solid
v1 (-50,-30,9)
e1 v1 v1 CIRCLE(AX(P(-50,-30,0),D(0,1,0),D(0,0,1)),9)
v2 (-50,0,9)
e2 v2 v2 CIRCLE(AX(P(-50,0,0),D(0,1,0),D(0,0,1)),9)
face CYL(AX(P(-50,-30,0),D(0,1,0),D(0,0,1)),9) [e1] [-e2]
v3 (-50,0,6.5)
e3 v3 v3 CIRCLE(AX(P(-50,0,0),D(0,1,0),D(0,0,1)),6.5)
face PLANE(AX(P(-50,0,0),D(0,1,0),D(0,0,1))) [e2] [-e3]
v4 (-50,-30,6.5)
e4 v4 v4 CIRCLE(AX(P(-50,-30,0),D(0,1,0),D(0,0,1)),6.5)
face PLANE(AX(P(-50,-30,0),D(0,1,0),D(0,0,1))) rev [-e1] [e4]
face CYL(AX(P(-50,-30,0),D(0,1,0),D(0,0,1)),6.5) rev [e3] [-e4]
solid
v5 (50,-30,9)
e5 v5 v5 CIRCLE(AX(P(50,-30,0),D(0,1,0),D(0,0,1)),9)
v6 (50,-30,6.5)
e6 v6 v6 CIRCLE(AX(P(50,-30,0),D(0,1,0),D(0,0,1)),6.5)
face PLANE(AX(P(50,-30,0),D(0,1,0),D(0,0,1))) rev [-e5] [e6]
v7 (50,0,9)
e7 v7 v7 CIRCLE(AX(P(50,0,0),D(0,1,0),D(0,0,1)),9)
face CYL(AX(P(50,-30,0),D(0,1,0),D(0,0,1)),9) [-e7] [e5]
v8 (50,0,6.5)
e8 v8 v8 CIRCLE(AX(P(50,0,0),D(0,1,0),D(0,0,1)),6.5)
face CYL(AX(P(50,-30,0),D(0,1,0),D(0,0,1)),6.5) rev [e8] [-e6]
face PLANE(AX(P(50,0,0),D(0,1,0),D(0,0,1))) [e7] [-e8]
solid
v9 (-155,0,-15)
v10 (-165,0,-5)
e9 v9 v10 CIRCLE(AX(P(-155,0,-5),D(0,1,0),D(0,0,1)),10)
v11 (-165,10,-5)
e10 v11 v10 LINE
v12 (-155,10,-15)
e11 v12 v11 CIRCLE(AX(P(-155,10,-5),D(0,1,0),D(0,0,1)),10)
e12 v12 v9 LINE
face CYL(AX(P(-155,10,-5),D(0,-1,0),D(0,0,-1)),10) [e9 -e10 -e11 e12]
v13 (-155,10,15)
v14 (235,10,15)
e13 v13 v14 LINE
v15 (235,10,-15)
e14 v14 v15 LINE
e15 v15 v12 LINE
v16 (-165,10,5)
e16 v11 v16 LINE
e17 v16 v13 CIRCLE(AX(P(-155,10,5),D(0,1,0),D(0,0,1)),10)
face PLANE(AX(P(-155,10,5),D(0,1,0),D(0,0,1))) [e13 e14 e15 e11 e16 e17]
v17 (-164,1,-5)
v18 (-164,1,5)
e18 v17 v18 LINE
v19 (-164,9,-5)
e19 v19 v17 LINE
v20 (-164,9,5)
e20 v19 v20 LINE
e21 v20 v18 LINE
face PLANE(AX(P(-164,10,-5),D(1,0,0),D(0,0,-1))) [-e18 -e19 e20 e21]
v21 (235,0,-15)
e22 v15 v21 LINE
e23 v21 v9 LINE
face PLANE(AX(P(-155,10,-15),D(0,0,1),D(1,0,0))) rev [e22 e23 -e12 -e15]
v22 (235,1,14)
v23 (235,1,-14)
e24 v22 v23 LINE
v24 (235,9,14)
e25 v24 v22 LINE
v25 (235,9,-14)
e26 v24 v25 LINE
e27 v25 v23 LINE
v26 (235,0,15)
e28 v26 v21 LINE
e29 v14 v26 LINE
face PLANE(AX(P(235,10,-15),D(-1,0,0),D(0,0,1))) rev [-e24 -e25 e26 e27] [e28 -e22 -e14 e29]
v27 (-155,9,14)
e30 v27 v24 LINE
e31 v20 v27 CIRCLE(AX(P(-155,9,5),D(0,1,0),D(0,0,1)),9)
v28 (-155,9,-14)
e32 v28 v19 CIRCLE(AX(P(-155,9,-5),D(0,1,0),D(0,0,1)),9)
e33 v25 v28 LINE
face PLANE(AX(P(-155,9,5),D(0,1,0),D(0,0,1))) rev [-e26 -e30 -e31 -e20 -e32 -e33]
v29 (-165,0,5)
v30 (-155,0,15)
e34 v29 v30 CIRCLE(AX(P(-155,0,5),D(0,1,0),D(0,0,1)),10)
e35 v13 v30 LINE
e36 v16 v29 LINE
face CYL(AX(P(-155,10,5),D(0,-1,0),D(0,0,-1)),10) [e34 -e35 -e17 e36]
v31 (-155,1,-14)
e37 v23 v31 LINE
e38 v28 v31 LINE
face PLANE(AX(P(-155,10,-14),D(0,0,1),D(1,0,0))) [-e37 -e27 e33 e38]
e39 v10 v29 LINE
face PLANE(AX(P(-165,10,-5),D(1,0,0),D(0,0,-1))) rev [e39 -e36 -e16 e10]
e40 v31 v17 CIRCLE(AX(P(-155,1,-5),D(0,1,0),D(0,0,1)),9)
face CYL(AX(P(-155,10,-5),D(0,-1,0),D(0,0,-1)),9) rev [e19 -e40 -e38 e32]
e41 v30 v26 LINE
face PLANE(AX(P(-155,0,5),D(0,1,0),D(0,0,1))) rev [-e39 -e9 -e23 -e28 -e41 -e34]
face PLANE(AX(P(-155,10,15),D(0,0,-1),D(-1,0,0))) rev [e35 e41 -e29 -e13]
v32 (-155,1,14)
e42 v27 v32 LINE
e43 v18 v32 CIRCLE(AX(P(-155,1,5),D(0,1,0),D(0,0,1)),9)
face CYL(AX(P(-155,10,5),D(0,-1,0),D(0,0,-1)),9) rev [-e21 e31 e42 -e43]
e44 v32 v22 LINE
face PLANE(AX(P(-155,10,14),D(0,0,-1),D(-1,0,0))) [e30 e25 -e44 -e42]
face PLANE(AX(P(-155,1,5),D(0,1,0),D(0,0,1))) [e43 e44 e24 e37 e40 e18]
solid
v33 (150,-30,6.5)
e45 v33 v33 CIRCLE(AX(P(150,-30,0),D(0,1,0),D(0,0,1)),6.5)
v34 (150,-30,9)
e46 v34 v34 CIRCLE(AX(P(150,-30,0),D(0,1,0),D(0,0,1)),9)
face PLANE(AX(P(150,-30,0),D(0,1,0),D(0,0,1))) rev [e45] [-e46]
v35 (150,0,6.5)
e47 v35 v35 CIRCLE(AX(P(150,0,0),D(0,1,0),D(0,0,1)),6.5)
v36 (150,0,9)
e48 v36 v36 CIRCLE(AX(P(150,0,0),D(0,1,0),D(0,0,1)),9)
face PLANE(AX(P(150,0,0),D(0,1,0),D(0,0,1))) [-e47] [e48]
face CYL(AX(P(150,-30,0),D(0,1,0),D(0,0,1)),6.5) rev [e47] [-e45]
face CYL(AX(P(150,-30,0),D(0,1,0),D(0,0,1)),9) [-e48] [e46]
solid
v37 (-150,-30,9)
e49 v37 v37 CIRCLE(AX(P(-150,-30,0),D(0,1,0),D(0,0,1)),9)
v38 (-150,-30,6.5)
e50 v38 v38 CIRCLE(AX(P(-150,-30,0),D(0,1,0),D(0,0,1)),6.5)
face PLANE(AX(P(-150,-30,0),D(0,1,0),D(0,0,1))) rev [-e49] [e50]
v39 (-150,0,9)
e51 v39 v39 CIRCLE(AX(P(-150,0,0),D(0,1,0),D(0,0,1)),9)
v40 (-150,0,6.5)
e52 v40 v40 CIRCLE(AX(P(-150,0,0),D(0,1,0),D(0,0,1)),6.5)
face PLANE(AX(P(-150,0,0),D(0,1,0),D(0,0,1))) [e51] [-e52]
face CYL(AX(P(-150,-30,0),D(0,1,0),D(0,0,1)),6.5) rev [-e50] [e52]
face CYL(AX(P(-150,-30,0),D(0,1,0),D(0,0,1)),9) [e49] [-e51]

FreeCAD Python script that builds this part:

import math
import FreeCAD as App
import Part
import Sketcher


def faces_at(feature, points):
    """Names of the faces that lie closest to the given points."""
    faces = feature.Shape.Faces
    near = lambda p: min(range(len(faces)), key=lambda i: faces[i].distToShape(Part.Vertex(*p))[0])
    return sorted({f"Face{near(p) + 1}" for p in points})

doc = App.newDocument("Part")
body = doc.addObject("PartDesign::Body", "Body")

# Sketch on XZ plane
sketch1 = body.newObject("Sketcher::SketchObject", "Sketch")
sketch1.AttachmentSupport = (doc.getObject("XZ_Plane"), [""])
sketch1.MapMode = "FlatFace"
sketch1.addGeometry(Part.Circle(App.Vector(-150, 0, 0), App.Vector(0, 0, 1), 9), False)
sketch1.addGeometry(Part.Circle(App.Vector(-150, 0, 0), App.Vector(0, 0, 1), 6), False)
sketch1.addConstraint(Sketcher.Constraint("Coincident", 1, 3, 0, 3))
sketch1.addConstraint(Sketcher.Constraint("PointOnObject", 0, 3, -1))
sketch1.addConstraint(Sketcher.Constraint("Diameter", 0, 18.0))
sketch1.addConstraint(Sketcher.Constraint("Diameter", 1, 13.0))
sketch1.addConstraint(Sketcher.Constraint("DistanceX", 0, 3, -1, 1, 150.0))
pad1 = body.newObject("PartDesign::Pad", "Pad")
pad1.Profile = sketch1
pad1.Length = 30
body2 = doc.addObject("PartDesign::Body", "Body001")

# Sketch on XZ plane
sketch2 = body2.newObject("Sketcher::SketchObject", "Sketch001")
sketch2.AttachmentSupport = (doc.getObject("XZ_Plane001"), [""])
sketch2.MapMode = "FlatFace"
sketch2.addGeometry(Part.Circle(App.Vector(-50, 0, 0), App.Vector(0, 0, 1), 9), False)
sketch2.addGeometry(Part.Circle(App.Vector(-50, 0, 0), App.Vector(0, 0, 1), 6), False)
sketch2.addConstraint(Sketcher.Constraint("Coincident", 1, 3, 0, 3))
sketch2.addConstraint(Sketcher.Constraint("PointOnObject", 0, 3, -1))
sketch2.addConstraint(Sketcher.Constraint("Diameter", 0, 18.0))
sketch2.addConstraint(Sketcher.Constraint("Diameter", 1, 13.0))
sketch2.addConstraint(Sketcher.Constraint("DistanceX", 0, 3, -1, 1, 50.0))
pad2 = body2.newObject("PartDesign::Pad", "Pad001")
pad2.Profile = sketch2
pad2.Length = 30
body3 = doc.addObject("PartDesign::Body", "Body002")

# Sketch on XZ plane
sketch3 = body3.newObject("Sketcher::SketchObject", "Sketch002")
sketch3.AttachmentSupport = (doc.getObject("XZ_Plane002"), [""])
sketch3.MapMode = "FlatFace"
sketch3.addGeometry(Part.Circle(App.Vector(50, 0, 0), App.Vector(0, 0, 1), 9), False)
sketch3.addGeometry(Part.Circle(App.Vector(50, 0, 0), App.Vector(0, 0, 1), 6), False)
sketch3.addConstraint(Sketcher.Constraint("Coincident", 1, 3, 0, 3))
sketch3.addConstraint(Sketcher.Constraint("PointOnObject", 0, 3, -1))
sketch3.addConstraint(Sketcher.Constraint("Diameter", 0, 18.0))
sketch3.addConstraint(Sketcher.Constraint("Diameter", 1, 13.0))
sketch3.addConstraint(Sketcher.Constraint("DistanceX", -1, 1, 0, 3, 50.0))
pad3 = body3.newObject("PartDesign::Pad", "Pad002")
pad3.Profile = sketch3
pad3.Length = 30
body4 = doc.addObject("PartDesign::Body", "Body003")

# Sketch on XZ plane
sketch4 = body4.newObject("Sketcher::SketchObject", "Sketch003")
sketch4.AttachmentSupport = (doc.getObject("XZ_Plane003"), [""])
sketch4.MapMode = "FlatFace"
sketch4.addGeometry(Part.Circle(App.Vector(150, 0, 0), App.Vector(0, 0, 1), 9), False)
sketch4.addGeometry(Part.Circle(App.Vector(150, 0, 0), App.Vector(0, 0, 1), 6), False)
sketch4.addConstraint(Sketcher.Constraint("Coincident", 1, 3, 0, 3))
sketch4.addConstraint(Sketcher.Constraint("PointOnObject", 0, 3, -1))
sketch4.addConstraint(Sketcher.Constraint("Diameter", 0, 18.0))
sketch4.addConstraint(Sketcher.Constraint("Diameter", 1, 13.0))
sketch4.addConstraint(Sketcher.Constraint("DistanceX", -1, 1, 0, 3, 150.0))
pad4 = body4.newObject("PartDesign::Pad", "Pad003")
pad4.Profile = sketch4
pad4.Length = 30
body5 = doc.addObject("PartDesign::Body", "Body004")

# Sketch on XZ plane
sketch5 = body5.newObject("Sketcher::SketchObject", "Sketch004")
sketch5.AttachmentSupport = (doc.getObject("XZ_Plane004"), [""])
sketch5.MapMode = "FlatFace"
sketch5.addGeometry(Part.LineSegment(App.Vector(235, -15, 0), App.Vector(-155, -15, 0)), False)
sketch5.addGeometry(Part.ArcOfCircle(Part.Circle(App.Vector(-155, -5, 0), App.Vector(0, 0, 1), 10), math.radians(180), math.radians(270)), False)
sketch5.addGeometry(Part.LineSegment(App.Vector(-165, -5, 0), App.Vector(-165, 5, 0)), False)
sketch5.addGeometry(Part.ArcOfCircle(Part.Circle(App.Vector(-155, 5, 0), App.Vector(0, 0, 1), 10), math.radians(90), math.radians(180)), False)
sketch5.addGeometry(Part.LineSegment(App.Vector(-155, 15, 0), App.Vector(235, 15, 0)), False)
sketch5.addGeometry(Part.LineSegment(App.Vector(235, 15, 0), App.Vector(235, -15, 0)), False)
sketch5.addConstraint(Sketcher.Constraint("Tangent", 0, 2, 1, 2))
sketch5.addConstraint(Sketcher.Constraint("Tangent", 1, 1, 2, 1))
sketch5.addConstraint(Sketcher.Constraint("Tangent", 2, 2, 3, 2))
sketch5.addConstraint(Sketcher.Constraint("Tangent", 3, 1, 4, 1))
sketch5.addConstraint(Sketcher.Constraint("Coincident", 4, 2, 5, 1))
sketch5.addConstraint(Sketcher.Constraint("Coincident", 5, 2, 0, 1))
sketch5.addConstraint(Sketcher.Constraint("Horizontal", 0))
sketch5.addConstraint(Sketcher.Constraint("Vertical", 2))
sketch5.addConstraint(Sketcher.Constraint("Horizontal", 4))
sketch5.addConstraint(Sketcher.Constraint("Vertical", 5))
sketch5.addConstraint(Sketcher.Constraint("Equal", 1, 3))
sketch5.addConstraint(Sketcher.Constraint("Radius", 1, 10.0))
sketch5.addConstraint(Sketcher.Constraint("DistanceX", 0, 2, 0, 1, 390.0))
sketch5.addConstraint(Sketcher.Constraint("DistanceY", 2, 1, 2, 2, 10.0))
sketch5.addConstraint(Sketcher.Constraint("DistanceX", 1, 3, -1, 1, 155.0))
sketch5.addConstraint(Sketcher.Constraint("DistanceY", 1, 3, -1, 1, 5.0))
pad5 = body5.newObject("PartDesign::Pad", "Pad004")
pad5.Profile = sketch5
pad5.Length = 10
pad5.Reversed = True
doc.recompute()

thickness = body5.newObject("PartDesign::Thickness", "Thickness")
thickness.Base = (pad5, faces_at(pad5, [(235, 5, 0)]))
thickness.Value = 1
thickness.Reversed = True
thickness.Join = "Intersection"

doc.recompute()
